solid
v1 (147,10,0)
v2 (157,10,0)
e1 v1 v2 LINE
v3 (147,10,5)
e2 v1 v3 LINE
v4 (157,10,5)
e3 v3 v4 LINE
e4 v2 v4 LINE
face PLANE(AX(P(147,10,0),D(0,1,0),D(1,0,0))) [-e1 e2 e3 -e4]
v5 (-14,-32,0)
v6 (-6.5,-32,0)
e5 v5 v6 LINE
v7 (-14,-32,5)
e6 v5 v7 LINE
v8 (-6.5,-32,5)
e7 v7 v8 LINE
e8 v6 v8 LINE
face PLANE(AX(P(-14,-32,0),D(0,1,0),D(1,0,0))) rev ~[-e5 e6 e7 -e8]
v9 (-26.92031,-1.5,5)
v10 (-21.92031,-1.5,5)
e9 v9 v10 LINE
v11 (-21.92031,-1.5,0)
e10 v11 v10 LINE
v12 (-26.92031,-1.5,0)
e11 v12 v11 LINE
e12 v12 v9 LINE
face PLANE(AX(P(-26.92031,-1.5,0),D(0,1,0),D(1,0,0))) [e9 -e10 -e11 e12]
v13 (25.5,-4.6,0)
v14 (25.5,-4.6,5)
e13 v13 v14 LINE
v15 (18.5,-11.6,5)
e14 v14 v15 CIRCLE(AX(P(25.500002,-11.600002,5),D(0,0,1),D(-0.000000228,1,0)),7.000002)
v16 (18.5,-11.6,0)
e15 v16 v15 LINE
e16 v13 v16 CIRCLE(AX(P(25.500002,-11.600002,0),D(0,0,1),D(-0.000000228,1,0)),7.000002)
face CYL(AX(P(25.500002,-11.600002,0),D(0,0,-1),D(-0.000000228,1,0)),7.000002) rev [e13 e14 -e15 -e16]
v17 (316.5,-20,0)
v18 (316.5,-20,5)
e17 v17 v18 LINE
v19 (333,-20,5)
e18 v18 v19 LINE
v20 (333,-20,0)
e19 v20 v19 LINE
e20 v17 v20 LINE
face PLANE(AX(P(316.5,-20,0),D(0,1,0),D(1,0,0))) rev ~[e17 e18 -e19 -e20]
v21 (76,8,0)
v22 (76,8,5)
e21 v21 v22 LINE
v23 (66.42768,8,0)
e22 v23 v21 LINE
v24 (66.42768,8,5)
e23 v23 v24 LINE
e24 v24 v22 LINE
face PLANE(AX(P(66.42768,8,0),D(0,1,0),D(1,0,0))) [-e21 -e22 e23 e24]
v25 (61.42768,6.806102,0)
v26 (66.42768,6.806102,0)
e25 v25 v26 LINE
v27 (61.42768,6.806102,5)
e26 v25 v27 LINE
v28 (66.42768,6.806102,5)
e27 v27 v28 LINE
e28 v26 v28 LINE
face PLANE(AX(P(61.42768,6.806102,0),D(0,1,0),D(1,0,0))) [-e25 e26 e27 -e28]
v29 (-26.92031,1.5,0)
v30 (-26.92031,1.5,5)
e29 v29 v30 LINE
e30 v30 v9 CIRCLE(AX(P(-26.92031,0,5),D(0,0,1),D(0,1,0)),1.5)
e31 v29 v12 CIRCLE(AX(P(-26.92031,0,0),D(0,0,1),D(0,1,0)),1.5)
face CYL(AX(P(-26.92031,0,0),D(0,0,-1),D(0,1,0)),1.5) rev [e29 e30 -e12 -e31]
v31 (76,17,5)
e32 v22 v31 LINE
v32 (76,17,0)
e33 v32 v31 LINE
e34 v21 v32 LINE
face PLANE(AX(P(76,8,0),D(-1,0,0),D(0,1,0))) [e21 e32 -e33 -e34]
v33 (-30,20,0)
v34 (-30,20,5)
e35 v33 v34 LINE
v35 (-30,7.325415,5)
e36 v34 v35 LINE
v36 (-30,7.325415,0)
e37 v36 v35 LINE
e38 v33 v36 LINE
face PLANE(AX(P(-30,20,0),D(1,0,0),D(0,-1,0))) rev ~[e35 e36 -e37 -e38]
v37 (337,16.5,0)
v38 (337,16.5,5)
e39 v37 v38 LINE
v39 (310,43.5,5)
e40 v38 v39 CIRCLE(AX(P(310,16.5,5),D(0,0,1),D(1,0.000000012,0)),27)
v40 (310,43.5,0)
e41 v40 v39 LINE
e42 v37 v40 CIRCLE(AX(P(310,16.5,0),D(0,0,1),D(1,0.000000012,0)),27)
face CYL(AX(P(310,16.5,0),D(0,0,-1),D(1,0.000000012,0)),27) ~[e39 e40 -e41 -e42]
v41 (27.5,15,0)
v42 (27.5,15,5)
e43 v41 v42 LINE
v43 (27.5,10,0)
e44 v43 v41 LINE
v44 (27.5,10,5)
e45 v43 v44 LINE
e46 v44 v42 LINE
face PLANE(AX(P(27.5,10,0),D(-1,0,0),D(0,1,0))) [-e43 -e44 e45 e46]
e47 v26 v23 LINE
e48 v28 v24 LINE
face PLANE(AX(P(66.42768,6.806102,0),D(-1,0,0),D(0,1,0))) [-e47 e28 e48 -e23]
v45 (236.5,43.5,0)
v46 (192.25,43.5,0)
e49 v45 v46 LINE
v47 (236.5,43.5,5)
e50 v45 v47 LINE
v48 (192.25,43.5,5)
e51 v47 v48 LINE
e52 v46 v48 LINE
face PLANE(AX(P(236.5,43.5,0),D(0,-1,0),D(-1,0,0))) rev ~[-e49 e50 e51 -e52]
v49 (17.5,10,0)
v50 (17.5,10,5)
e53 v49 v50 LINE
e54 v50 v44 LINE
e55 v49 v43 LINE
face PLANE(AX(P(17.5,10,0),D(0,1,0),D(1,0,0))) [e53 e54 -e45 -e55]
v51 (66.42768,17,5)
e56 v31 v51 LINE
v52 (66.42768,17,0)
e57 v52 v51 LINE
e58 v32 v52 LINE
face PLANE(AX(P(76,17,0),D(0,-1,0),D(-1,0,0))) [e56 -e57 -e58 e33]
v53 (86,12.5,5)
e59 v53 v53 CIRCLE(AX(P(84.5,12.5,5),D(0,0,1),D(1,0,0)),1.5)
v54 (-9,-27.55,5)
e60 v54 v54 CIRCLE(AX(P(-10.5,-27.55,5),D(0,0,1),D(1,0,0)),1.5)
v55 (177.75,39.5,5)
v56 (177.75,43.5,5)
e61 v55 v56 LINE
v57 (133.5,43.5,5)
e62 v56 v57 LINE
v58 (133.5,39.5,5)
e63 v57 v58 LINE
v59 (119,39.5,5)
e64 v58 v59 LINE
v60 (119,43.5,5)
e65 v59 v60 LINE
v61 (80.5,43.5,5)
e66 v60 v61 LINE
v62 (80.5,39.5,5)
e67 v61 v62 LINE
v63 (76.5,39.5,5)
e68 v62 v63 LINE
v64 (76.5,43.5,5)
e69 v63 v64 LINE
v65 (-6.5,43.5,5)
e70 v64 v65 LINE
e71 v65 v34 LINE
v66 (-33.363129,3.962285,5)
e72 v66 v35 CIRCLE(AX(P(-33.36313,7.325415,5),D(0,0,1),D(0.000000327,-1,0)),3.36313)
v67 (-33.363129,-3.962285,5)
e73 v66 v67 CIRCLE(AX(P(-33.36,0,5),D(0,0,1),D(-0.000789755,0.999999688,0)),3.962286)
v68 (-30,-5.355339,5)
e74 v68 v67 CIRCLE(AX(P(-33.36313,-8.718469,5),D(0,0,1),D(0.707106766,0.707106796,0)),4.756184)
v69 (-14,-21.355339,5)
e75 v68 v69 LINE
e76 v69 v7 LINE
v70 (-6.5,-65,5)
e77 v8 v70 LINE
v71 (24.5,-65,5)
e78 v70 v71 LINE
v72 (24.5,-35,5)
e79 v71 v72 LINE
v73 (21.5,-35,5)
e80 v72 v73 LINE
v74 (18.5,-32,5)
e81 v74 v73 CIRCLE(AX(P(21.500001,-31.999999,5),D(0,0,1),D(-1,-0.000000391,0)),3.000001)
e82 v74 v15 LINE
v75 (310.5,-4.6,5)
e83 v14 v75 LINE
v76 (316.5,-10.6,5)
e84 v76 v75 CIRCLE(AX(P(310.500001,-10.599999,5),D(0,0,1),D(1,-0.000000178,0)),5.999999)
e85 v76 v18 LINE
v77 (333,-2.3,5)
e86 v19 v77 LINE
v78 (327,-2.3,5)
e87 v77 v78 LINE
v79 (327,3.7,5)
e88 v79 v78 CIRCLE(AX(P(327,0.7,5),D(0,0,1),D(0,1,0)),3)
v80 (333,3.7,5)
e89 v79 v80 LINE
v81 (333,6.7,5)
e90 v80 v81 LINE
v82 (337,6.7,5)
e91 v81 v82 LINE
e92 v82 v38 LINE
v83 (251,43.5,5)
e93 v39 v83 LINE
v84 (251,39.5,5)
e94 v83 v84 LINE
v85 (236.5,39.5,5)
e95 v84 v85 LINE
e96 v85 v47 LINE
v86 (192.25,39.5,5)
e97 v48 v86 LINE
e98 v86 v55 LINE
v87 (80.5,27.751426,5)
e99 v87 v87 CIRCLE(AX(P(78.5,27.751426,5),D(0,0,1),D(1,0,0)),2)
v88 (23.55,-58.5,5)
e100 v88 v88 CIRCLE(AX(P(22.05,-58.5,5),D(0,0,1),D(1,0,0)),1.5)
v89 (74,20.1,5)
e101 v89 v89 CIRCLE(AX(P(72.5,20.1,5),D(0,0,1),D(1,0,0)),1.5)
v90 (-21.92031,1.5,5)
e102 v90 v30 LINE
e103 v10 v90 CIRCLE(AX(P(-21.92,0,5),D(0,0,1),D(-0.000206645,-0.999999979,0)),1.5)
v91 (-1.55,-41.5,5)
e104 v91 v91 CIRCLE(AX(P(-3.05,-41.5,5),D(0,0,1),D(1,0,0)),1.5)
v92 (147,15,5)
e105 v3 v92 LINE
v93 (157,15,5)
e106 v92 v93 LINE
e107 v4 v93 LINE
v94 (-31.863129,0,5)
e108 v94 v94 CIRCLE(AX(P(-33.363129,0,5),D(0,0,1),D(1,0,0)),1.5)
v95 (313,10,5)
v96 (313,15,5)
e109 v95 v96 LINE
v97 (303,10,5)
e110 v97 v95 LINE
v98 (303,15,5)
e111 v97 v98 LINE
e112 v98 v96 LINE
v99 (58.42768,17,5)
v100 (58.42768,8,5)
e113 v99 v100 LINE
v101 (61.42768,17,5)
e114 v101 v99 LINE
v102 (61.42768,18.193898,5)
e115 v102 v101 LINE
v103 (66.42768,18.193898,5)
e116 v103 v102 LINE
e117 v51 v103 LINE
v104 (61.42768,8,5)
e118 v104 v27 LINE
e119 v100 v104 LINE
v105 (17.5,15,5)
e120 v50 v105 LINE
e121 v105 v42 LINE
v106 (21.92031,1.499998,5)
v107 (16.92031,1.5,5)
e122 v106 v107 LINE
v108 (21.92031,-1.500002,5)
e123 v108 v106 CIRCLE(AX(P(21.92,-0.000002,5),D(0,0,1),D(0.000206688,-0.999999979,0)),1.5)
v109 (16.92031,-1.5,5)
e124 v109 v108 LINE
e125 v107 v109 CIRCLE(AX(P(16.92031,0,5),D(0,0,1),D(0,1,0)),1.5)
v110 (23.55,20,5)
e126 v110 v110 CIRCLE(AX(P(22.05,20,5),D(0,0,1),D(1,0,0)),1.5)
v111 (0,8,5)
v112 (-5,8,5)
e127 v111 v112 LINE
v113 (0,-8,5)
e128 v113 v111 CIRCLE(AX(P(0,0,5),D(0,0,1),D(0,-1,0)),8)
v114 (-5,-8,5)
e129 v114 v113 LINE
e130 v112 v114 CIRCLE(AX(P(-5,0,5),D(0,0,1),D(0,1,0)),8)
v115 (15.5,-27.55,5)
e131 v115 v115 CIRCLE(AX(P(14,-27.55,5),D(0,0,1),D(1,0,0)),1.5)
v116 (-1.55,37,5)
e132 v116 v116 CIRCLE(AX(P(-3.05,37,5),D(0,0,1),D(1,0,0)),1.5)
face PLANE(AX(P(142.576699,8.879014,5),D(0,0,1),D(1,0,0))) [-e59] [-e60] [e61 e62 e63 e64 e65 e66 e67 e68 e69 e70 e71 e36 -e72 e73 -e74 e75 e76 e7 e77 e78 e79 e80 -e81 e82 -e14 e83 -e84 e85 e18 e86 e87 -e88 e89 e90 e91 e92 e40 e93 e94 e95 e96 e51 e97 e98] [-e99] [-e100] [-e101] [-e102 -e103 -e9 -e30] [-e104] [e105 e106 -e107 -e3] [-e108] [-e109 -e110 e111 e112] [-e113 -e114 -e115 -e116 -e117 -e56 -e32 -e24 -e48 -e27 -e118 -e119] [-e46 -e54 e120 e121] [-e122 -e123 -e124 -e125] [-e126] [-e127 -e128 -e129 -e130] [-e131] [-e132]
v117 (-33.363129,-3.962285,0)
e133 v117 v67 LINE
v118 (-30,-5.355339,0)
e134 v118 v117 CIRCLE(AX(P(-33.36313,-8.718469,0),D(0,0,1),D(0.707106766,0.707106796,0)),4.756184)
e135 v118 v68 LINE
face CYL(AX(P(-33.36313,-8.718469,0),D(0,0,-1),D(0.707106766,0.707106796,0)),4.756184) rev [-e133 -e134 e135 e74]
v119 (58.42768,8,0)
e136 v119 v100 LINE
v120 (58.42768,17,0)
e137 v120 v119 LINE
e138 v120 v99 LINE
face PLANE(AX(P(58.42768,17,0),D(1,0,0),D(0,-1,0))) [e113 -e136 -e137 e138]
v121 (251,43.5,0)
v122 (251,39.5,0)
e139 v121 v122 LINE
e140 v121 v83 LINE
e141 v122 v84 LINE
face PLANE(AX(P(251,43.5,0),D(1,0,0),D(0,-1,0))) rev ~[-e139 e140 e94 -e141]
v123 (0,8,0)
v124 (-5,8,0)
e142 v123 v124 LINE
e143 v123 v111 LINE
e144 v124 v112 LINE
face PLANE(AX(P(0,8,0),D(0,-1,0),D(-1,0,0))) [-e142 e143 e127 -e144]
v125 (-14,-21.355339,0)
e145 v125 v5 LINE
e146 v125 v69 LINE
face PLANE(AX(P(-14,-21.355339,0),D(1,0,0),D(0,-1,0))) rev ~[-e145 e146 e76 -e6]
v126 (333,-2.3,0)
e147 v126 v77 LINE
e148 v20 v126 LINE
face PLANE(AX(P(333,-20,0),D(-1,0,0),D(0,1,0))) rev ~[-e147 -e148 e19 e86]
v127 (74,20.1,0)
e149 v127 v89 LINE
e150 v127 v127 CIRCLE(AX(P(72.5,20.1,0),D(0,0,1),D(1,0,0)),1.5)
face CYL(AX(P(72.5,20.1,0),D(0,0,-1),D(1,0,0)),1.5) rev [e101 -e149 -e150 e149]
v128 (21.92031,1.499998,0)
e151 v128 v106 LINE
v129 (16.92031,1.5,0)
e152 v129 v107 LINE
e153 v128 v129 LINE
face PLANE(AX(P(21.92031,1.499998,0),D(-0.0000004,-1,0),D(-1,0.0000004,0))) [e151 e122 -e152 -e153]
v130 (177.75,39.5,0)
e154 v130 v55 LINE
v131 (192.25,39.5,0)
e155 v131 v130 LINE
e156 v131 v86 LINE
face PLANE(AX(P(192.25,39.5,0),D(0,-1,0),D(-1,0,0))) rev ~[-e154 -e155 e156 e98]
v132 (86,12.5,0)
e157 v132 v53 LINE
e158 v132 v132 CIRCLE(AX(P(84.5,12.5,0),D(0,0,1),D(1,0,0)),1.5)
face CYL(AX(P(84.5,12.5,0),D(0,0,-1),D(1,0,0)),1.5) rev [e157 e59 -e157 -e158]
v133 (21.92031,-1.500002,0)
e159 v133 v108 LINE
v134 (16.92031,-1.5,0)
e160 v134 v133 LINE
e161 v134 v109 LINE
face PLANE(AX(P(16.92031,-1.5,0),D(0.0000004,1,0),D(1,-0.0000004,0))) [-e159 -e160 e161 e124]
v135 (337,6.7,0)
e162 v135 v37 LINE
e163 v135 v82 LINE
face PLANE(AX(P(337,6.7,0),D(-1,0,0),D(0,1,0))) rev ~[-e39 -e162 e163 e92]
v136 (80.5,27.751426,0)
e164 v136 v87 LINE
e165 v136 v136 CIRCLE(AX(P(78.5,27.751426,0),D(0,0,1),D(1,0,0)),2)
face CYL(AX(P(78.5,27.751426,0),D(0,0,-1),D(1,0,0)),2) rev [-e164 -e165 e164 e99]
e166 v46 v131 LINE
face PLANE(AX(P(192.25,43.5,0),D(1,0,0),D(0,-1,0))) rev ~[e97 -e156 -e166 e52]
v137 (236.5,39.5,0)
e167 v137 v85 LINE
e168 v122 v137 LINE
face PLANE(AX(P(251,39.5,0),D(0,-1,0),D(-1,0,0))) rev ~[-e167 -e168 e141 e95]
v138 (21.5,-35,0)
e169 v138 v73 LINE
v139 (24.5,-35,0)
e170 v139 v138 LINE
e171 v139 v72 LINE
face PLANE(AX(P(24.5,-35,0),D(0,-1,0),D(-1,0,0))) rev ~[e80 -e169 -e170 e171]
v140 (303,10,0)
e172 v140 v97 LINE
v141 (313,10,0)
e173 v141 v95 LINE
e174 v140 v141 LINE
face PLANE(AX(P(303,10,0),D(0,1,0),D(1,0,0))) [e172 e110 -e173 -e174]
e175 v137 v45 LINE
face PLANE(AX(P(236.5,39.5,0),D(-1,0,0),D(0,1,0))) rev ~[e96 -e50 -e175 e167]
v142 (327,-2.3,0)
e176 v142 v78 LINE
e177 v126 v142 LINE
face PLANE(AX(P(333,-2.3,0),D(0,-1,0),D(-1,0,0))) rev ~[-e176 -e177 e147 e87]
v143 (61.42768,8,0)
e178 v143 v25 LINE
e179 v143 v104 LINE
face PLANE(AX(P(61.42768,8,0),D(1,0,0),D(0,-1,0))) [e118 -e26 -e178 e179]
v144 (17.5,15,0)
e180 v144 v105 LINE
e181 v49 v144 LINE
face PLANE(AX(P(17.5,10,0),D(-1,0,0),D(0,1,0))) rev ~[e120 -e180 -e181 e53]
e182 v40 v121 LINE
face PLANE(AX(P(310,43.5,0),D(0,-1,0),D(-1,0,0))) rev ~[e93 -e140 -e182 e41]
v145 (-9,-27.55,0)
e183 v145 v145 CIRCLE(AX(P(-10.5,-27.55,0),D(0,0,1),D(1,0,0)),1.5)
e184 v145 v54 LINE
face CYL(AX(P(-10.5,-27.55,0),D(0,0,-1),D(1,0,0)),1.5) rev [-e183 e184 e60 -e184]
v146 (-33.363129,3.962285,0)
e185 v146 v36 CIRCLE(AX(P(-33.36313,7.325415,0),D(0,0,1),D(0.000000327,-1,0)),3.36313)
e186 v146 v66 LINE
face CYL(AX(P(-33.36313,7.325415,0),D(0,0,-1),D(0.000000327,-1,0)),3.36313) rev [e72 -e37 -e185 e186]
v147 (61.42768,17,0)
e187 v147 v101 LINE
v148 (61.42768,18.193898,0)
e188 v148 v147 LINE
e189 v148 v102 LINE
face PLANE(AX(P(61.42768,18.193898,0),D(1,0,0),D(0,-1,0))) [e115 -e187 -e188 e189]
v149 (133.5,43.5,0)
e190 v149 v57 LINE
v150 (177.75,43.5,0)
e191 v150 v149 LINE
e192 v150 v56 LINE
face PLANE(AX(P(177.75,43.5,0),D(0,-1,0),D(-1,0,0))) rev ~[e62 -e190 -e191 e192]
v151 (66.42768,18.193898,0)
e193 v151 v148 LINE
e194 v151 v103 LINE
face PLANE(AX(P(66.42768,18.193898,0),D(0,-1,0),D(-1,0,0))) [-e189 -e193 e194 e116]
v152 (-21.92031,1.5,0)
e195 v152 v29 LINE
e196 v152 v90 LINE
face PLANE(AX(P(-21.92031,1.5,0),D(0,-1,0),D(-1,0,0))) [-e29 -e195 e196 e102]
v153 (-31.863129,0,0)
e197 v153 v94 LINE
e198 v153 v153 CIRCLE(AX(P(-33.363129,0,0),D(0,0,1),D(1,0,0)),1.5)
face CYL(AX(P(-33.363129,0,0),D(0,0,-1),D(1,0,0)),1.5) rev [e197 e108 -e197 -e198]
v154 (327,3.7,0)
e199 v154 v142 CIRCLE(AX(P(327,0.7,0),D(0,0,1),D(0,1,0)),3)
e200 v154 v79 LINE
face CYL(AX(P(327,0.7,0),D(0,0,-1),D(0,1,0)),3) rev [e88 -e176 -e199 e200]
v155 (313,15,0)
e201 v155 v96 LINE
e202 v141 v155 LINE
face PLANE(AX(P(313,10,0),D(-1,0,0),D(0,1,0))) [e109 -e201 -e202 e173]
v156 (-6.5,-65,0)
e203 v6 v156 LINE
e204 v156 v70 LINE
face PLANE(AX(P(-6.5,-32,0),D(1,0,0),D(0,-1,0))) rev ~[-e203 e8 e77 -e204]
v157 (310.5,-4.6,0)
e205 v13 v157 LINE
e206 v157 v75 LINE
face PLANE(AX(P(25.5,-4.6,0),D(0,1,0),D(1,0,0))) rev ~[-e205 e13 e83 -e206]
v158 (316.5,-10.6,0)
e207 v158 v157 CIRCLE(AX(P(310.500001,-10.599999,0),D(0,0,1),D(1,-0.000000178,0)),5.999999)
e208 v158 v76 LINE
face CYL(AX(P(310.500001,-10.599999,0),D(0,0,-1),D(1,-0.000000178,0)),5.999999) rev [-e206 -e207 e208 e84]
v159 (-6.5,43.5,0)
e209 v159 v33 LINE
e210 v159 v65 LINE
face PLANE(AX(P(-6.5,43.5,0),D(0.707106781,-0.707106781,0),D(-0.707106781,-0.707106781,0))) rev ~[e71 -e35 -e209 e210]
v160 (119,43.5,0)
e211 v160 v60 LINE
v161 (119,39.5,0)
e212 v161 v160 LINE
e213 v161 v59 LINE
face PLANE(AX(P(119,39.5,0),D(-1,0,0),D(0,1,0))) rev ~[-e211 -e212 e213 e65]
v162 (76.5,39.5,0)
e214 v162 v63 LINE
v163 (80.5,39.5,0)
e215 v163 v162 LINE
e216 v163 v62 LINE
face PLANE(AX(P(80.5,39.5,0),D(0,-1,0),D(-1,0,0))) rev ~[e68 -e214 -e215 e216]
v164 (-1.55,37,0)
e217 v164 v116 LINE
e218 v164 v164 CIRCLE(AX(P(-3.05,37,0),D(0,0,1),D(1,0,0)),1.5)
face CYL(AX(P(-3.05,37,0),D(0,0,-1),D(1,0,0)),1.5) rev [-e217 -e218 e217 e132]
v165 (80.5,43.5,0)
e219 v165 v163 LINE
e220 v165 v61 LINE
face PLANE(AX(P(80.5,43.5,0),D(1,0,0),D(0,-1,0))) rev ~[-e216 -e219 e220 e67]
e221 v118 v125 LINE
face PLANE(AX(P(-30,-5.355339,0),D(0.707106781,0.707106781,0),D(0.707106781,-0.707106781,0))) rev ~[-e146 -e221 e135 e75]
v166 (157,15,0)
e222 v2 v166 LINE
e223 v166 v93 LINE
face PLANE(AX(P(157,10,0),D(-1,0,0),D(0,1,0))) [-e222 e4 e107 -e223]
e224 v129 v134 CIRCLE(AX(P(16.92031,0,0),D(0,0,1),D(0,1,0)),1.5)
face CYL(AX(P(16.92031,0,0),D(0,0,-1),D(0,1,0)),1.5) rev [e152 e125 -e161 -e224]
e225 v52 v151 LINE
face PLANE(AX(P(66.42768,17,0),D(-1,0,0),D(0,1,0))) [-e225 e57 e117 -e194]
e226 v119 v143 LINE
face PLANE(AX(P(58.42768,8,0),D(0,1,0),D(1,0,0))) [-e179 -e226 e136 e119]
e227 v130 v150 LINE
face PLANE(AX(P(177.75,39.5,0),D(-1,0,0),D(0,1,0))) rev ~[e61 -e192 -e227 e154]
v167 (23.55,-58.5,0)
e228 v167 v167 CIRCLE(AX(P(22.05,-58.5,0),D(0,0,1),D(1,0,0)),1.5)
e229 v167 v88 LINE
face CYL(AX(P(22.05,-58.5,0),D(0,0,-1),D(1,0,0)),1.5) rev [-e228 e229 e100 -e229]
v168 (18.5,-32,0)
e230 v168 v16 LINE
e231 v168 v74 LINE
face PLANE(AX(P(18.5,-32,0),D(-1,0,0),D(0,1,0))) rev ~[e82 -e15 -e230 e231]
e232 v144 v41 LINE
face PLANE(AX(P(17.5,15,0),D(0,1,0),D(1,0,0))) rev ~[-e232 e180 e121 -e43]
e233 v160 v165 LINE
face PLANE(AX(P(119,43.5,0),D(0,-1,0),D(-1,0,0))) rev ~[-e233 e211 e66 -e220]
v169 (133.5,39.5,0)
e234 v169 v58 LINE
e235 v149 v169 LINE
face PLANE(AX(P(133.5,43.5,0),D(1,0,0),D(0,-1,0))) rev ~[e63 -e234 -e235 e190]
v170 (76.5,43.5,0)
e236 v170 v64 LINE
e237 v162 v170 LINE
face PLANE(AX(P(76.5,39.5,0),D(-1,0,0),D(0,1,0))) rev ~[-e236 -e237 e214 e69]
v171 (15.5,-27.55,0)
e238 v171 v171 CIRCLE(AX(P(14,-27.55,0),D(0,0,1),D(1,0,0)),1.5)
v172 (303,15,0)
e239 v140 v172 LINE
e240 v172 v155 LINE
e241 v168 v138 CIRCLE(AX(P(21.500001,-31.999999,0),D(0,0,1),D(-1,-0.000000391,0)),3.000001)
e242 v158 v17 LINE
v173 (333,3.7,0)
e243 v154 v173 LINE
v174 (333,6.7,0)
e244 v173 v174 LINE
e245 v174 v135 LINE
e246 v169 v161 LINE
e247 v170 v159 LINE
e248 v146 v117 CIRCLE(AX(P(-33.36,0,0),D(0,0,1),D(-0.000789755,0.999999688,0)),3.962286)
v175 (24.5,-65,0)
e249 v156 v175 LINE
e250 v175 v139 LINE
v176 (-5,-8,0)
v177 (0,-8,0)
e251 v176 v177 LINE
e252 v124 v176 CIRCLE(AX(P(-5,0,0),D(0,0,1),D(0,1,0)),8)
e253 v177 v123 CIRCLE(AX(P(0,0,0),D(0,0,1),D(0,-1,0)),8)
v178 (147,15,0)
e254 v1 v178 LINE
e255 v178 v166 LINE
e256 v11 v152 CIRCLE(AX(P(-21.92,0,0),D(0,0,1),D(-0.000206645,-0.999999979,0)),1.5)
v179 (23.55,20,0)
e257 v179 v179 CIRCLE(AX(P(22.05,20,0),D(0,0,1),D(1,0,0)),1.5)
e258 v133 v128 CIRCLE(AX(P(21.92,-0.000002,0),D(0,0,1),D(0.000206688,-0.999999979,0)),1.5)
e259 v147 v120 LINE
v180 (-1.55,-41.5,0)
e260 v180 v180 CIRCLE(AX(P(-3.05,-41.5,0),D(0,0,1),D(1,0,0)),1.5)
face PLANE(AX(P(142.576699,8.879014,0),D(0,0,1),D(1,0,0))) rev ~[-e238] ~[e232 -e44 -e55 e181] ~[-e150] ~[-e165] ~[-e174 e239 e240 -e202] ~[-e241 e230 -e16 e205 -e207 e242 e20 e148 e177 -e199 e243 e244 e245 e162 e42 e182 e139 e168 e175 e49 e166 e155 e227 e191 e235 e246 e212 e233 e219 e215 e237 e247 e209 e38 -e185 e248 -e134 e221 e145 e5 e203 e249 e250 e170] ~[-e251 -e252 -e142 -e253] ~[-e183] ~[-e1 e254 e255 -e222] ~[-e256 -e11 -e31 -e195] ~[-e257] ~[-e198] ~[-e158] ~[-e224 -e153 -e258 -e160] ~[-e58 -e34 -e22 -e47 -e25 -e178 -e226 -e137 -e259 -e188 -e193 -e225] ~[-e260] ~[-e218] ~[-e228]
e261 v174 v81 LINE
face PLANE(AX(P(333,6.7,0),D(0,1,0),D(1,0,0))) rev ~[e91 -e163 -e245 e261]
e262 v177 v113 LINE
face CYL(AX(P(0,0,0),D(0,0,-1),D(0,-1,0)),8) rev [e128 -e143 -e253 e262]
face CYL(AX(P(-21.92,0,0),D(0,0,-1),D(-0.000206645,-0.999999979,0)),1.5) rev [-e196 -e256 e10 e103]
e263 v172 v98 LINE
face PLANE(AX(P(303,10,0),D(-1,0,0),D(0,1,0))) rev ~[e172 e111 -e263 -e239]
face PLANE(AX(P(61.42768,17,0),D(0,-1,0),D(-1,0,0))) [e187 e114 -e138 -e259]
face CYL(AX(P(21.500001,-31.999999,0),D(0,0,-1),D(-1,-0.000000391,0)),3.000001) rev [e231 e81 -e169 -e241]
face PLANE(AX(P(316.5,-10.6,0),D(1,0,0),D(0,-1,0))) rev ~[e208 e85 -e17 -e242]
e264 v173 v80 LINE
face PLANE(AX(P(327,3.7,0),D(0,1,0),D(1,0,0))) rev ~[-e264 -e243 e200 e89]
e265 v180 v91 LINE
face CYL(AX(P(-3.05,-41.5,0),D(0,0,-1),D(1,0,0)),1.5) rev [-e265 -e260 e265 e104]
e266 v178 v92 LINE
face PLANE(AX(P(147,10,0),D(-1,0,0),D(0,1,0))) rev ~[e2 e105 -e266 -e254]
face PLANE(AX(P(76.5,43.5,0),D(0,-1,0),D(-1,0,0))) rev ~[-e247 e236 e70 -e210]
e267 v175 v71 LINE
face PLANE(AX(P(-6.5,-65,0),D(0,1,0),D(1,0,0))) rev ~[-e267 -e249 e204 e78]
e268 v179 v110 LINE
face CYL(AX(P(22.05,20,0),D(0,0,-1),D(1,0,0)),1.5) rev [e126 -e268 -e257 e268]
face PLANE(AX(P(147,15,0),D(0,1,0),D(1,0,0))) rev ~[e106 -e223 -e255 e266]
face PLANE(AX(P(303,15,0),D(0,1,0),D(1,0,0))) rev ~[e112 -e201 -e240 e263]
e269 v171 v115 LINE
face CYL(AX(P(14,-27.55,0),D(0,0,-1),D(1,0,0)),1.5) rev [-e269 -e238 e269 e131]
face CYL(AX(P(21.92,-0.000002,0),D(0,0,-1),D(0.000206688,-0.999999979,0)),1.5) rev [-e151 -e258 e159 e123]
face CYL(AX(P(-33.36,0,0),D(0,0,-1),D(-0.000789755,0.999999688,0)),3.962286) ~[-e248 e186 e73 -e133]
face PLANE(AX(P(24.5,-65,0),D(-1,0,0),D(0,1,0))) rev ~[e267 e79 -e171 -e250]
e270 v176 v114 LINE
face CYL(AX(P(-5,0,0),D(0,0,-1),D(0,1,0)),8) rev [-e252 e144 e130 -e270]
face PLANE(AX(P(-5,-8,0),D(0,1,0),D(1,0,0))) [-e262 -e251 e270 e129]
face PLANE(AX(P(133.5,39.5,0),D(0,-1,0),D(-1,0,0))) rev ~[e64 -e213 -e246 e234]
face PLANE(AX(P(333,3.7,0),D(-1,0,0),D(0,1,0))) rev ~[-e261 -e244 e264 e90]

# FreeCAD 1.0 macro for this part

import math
import FreeCAD as App
import Part
import Sketcher
Q = App.Units.Quantity

doc = App.newDocument("Part")
params = doc.addObject("Spreadsheet::Sheet", "Params")
for row, (alias, value) in enumerate([
    ("sketch1_diameter", "3 mm"),
    ("sketch1_diameter2", "4 mm"),
    ("sketch1_radius", "3.000001 mm"),
    ("sketch1_radius2", "7.000002 mm"),
    ("sketch1_radius3", "5.999999 mm"),
    ("pad1_length", "5 mm"),
], start=1):
    params.set(f"A{row}", alias)
    params.set(f"B{row}", "=" + value)
    params.setAlias(f"B{row}", alias)

body = doc.addObject("PartDesign::Body", "Body")

sketch1 = body.newObject("Sketcher::SketchObject", "Sketch")
sketch1.AttachmentSupport = (doc.getObject("XY_Plane"), [""])
sketch1.MapMode = "FlatFace"
sketch1.addGeometry([
    Part.LineSegment(App.Vector(24.5, -35, 0), App.Vector(21.5, -35, 0)),
    Part.ArcOfCircle(Part.Circle(App.Vector(21.500001, -31.999999, 0), App.Vector(0, 0, 1), 3.000001), math.radians(-179.999978), math.radians(-90.000022)),
    Part.LineSegment(App.Vector(18.5, -32, 0), App.Vector(18.5, -11.6, 0)),
    Part.ArcOfCircle(Part.Circle(App.Vector(25.500002, -11.600002, 0), App.Vector(0, 0, 1), 7.000002), math.radians(90.000013), math.radians(179.999987)),
    Part.LineSegment(App.Vector(25.5, -4.6, 0), App.Vector(310.5, -4.6, 0)),
    Part.ArcOfCircle(Part.Circle(App.Vector(310.500001, -10.599999, 0), App.Vector(0, 0, 1), 5.999999), math.radians(-0.00001), math.radians(90.00001)),
    Part.LineSegment(App.Vector(316.5, -10.6, 0), App.Vector(316.5, -20, 0)),
    Part.LineSegment(App.Vector(316.5, -20, 0), App.Vector(333, -20, 0)),
    Part.LineSegment(App.Vector(333, -20, 0), App.Vector(333, -2.3, 0)),
    Part.LineSegment(App.Vector(333, -2.3, 0), App.Vector(327, -2.3, 0)),
    Part.ArcOfCircle(Part.Circle(App.Vector(327, 0.7, 0), App.Vector(0, 0, 1), 3), math.radians(90), math.radians(270)),
    Part.LineSegment(App.Vector(327, 3.7, 0), App.Vector(333, 3.7, 0)),
    Part.LineSegment(App.Vector(333, 3.7, 0), App.Vector(333, 6.7, 0)),
    Part.LineSegment(App.Vector(333, 6.7, 0), App.Vector(337, 6.7, 0)),
    Part.LineSegment(App.Vector(337, 6.7, 0), App.Vector(337, 16.5, 0)),
    Part.ArcOfCircle(Part.Circle(App.Vector(310, 16.5, 0), App.Vector(0, 0, 1), 27), math.radians(0.000001), math.radians(89.999999)),
    Part.LineSegment(App.Vector(310, 43.5, 0), App.Vector(251, 43.5, 0)),
    Part.LineSegment(App.Vector(251, 43.5, 0), App.Vector(251, 39.5, 0)),
    Part.LineSegment(App.Vector(251, 39.5, 0), App.Vector(236.5, 39.5, 0)),
    Part.LineSegment(App.Vector(236.5, 39.5, 0), App.Vector(236.5, 43.5, 0)),
    Part.LineSegment(App.Vector(236.5, 43.5, 0), App.Vector(192.25, 43.5, 0)),
    Part.LineSegment(App.Vector(192.25, 43.5, 0), App.Vector(192.25, 39.5, 0)),
    Part.LineSegment(App.Vector(192.25, 39.5, 0), App.Vector(177.75, 39.5, 0)),
    Part.LineSegment(App.Vector(177.75, 39.5, 0), App.Vector(177.75, 43.5, 0)),
    Part.LineSegment(App.Vector(177.75, 43.5, 0), App.Vector(133.5, 43.5, 0)),
    Part.LineSegment(App.Vector(133.5, 43.5, 0), App.Vector(133.5, 39.5, 0)),
    Part.LineSegment(App.Vector(133.5, 39.5, 0), App.Vector(119, 39.5, 0)),
    Part.LineSegment(App.Vector(119, 39.5, 0), App.Vector(119, 43.5, 0)),
    Part.LineSegment(App.Vector(119, 43.5, 0), App.Vector(80.5, 43.5, 0)),
    Part.LineSegment(App.Vector(80.5, 43.5, 0), App.Vector(80.5, 39.5, 0)),
    Part.LineSegment(App.Vector(80.5, 39.5, 0), App.Vector(76.5, 39.5, 0)),
    Part.LineSegment(App.Vector(76.5, 39.5, 0), App.Vector(76.5, 43.5, 0)),
    Part.LineSegment(App.Vector(76.5, 43.5, 0), App.Vector(-6.5, 43.5, 0)),
    Part.LineSegment(App.Vector(-6.5, 43.5, 0), App.Vector(-30, 20, 0)),
    Part.LineSegment(App.Vector(-30, 20, 0), App.Vector(-30, 7.325415, 0)),
    Part.ArcOfCircle(Part.Circle(App.Vector(-33.36313, 7.325415, 0), App.Vector(0, 0, 1), 3.36313), math.radians(-89.999981), math.radians(-0.000002)),
    Part.ArcOfCircle(Part.Circle(App.Vector(-33.36, 0, 0), App.Vector(0, 0, 1), 3.962286), math.radians(90.04525), math.radians(269.95475)),
    Part.ArcOfCircle(Part.Circle(App.Vector(-33.36313, -8.718469, 0), App.Vector(0, 0, 1), 4.756184), math.radians(45.000001), math.radians(89.999988)),
    Part.LineSegment(App.Vector(-30, -5.355339, 0), App.Vector(-14, -21.355339, 0)),
    Part.LineSegment(App.Vector(-14, -21.355339, 0), App.Vector(-14, -32, 0)),
    Part.LineSegment(App.Vector(-14, -32, 0), App.Vector(-6.5, -32, 0)),
    Part.LineSegment(App.Vector(-6.5, -32, 0), App.Vector(-6.5, -65, 0)),
    Part.LineSegment(App.Vector(-6.5, -65, 0), App.Vector(24.5, -65, 0)),
    Part.LineSegment(App.Vector(24.5, -65, 0), App.Vector(24.5, -35, 0)),
    Part.Circle(App.Vector(22.05, -58.5, 0), App.Vector(0, 0, 1), 1.5),
    Part.Circle(App.Vector(-3.05, -41.5, 0), App.Vector(0, 0, 1), 1.5),
    Part.Circle(App.Vector(-10.5, -27.55, 0), App.Vector(0, 0, 1), 1.5),
    Part.Circle(App.Vector(14, -27.55, 0), App.Vector(0, 0, 1), 1.5),
    Part.Circle(App.Vector(-33.363129, 0, 0), App.Vector(0, 0, 1), 1.5),
    Part.LineSegment(App.Vector(-26.92031, 1.5, 0), App.Vector(-21.92031, 1.5, 0)),
    Part.ArcOfCircle(Part.Circle(App.Vector(-21.92, 0, 0), App.Vector(0, 0, 1), 1.5), math.radians(-90.01184), math.radians(90.01184)),
    Part.LineSegment(App.Vector(-21.92031, -1.5, 0), App.Vector(-26.92031, -1.5, 0)),
    Part.ArcOfCircle(Part.Circle(App.Vector(-26.92031, 0, 0), App.Vector(0, 0, 1), 1.5), math.radians(90), math.radians(270)),
    Part.LineSegment(App.Vector(0, -8, 0), App.Vector(-5, -8, 0)),
    Part.ArcOfCircle(Part.Circle(App.Vector(-5, 0, 0), App.Vector(0, 0, 1), 8), math.radians(90), math.radians(270)),
    Part.LineSegment(App.Vector(-5, 8, 0), App.Vector(0, 8, 0)),
    Part.ArcOfCircle(Part.Circle(App.Vector(0, 0, 0), App.Vector(0, 0, 1), 8), math.radians(-90), math.radians(90)),
    Part.ArcOfCircle(Part.Circle(App.Vector(21.92, -0.000002, 0), App.Vector(0, 0, 1), 1.5), math.radians(-89.988158), math.radians(89.988158)),
    Part.LineSegment(App.Vector(21.92031, -1.500002, 0), App.Vector(16.92031, -1.5, 0)),
    Part.ArcOfCircle(Part.Circle(App.Vector(16.92031, 0, 0), App.Vector(0, 0, 1), 1.5), math.radians(90), math.radians(270)),
    Part.LineSegment(App.Vector(16.92031, 1.5, 0), App.Vector(21.92031, 1.499998, 0)),
    Part.LineSegment(App.Vector(27.5, 10, 0), App.Vector(17.5, 10, 0)),
    Part.LineSegment(App.Vector(17.5, 10, 0), App.Vector(17.5, 15, 0)),
    Part.LineSegment(App.Vector(17.5, 15, 0), App.Vector(27.5, 15, 0)),
    Part.LineSegment(App.Vector(27.5, 15, 0), App.Vector(27.5, 10, 0)),
    Part.LineSegment(App.Vector(66.42768, 18.193898, 0), App.Vector(66.42768, 17, 0)),
    Part.LineSegment(App.Vector(66.42768, 17, 0), App.Vector(76, 17, 0)),
    Part.LineSegment(App.Vector(76, 17, 0), App.Vector(76, 8, 0)),
    Part.LineSegment(App.Vector(76, 8, 0), App.Vector(66.42768, 8, 0)),
    Part.LineSegment(App.Vector(66.42768, 8, 0), App.Vector(66.42768, 6.806102, 0)),
    Part.LineSegment(App.Vector(66.42768, 6.806102, 0), App.Vector(61.42768, 6.806102, 0)),
    Part.LineSegment(App.Vector(61.42768, 6.806102, 0), App.Vector(61.42768, 8, 0)),
    Part.LineSegment(App.Vector(61.42768, 8, 0), App.Vector(58.42768, 8, 0)),
    Part.LineSegment(App.Vector(58.42768, 8, 0), App.Vector(58.42768, 17, 0)),
    Part.LineSegment(App.Vector(58.42768, 17, 0), App.Vector(61.42768, 17, 0)),
    Part.LineSegment(App.Vector(61.42768, 17, 0), App.Vector(61.42768, 18.193898, 0)),
    Part.LineSegment(App.Vector(61.42768, 18.193898, 0), App.Vector(66.42768, 18.193898, 0)),
    Part.Circle(App.Vector(84.5, 12.5, 0), App.Vector(0, 0, 1), 1.5),
    Part.Circle(App.Vector(22.05, 20, 0), App.Vector(0, 0, 1), 1.5),
    Part.Circle(App.Vector(-3.05, 37, 0), App.Vector(0, 0, 1), 1.5),
    Part.Circle(App.Vector(72.5, 20.1, 0), App.Vector(0, 0, 1), 1.5),
    Part.Circle(App.Vector(78.5, 27.751426, 0), App.Vector(0, 0, 1), 2),
    Part.LineSegment(App.Vector(157, 10, 0), App.Vector(147, 10, 0)),
    Part.LineSegment(App.Vector(147, 10, 0), App.Vector(147, 15, 0)),
    Part.LineSegment(App.Vector(147, 15, 0), App.Vector(157, 15, 0)),
    Part.LineSegment(App.Vector(157, 15, 0), App.Vector(157, 10, 0)),
    Part.LineSegment(App.Vector(313, 10, 0), App.Vector(303, 10, 0)),
    Part.LineSegment(App.Vector(303, 10, 0), App.Vector(303, 15, 0)),
    Part.LineSegment(App.Vector(303, 15, 0), App.Vector(313, 15, 0)),
    Part.LineSegment(App.Vector(313, 15, 0), App.Vector(313, 10, 0)),
], False)
sketch1.addConstraint([
    Sketcher.Constraint("Tangent", 0, 2, 1, 2),
    Sketcher.Constraint("Tangent", 1, 1, 2, 1),
    Sketcher.Constraint("Tangent", 2, 2, 3, 2),
    Sketcher.Constraint("Tangent", 3, 1, 4, 1),
    Sketcher.Constraint("Tangent", 4, 2, 5, 2),
    Sketcher.Constraint("Tangent", 5, 1, 6, 1),
    Sketcher.Constraint("Coincident", 6, 2, 7, 1),
    Sketcher.Constraint("Coincident", 7, 2, 8, 1),
    Sketcher.Constraint("Coincident", 8, 2, 9, 1),
    Sketcher.Constraint("Tangent", 9, 2, 10, 2),
    Sketcher.Constraint("Tangent", 10, 1, 11, 1),
    Sketcher.Constraint("Coincident", 11, 2, 12, 1),
    Sketcher.Constraint("Coincident", 12, 2, 13, 1),
    Sketcher.Constraint("Coincident", 13, 2, 14, 1),
    Sketcher.Constraint("Tangent", 14, 2, 15, 1),
    Sketcher.Constraint("Tangent", 15, 2, 16, 1),
    Sketcher.Constraint("Coincident", 16, 2, 17, 1),
    Sketcher.Constraint("Coincident", 17, 2, 18, 1),
    Sketcher.Constraint("Coincident", 18, 2, 19, 1),
    Sketcher.Constraint("Coincident", 19, 2, 20, 1),
    Sketcher.Constraint("Coincident", 20, 2, 21, 1),
    Sketcher.Constraint("Coincident", 21, 2, 22, 1),
    Sketcher.Constraint("Coincident", 22, 2, 23, 1),
    Sketcher.Constraint("Coincident", 23, 2, 24, 1),
    Sketcher.Constraint("Coincident", 24, 2, 25, 1),
    Sketcher.Constraint("Coincident", 25, 2, 26, 1),
    Sketcher.Constraint("Coincident", 26, 2, 27, 1),
    Sketcher.Constraint("Coincident", 27, 2, 28, 1),
    Sketcher.Constraint("Coincident", 28, 2, 29, 1),
    Sketcher.Constraint("Coincident", 29, 2, 30, 1),
    Sketcher.Constraint("Coincident", 30, 2, 31, 1),
    Sketcher.Constraint("Coincident", 31, 2, 32, 1),
    Sketcher.Constraint("Coincident", 32, 2, 33, 1),
    Sketcher.Constraint("Coincident", 33, 2, 34, 1),
    Sketcher.Constraint("Tangent", 34, 2, 35, 2),
    Sketcher.Constraint("Coincident", 35, 1, 36, 1),
    Sketcher.Constraint("Coincident", 36, 2, 37, 2),
    Sketcher.Constraint("Tangent", 37, 1, 38, 1),
    Sketcher.Constraint("Coincident", 38, 2, 39, 1),
    Sketcher.Constraint("Coincident", 39, 2, 40, 1),
    Sketcher.Constraint("Coincident", 40, 2, 41, 1),
    Sketcher.Constraint("Coincident", 41, 2, 42, 1),
    Sketcher.Constraint("Coincident", 42, 2, 43, 1),
    Sketcher.Constraint("Coincident", 43, 2, 0, 1),
    Sketcher.Constraint("Coincident", 49, 2, 50, 2),
    Sketcher.Constraint("Coincident", 50, 1, 51, 1),
    Sketcher.Constraint("Tangent", 51, 2, 52, 2),
    Sketcher.Constraint("Tangent", 52, 1, 49, 1),
    Sketcher.Constraint("Tangent", 53, 2, 54, 2),
    Sketcher.Constraint("Tangent", 54, 1, 55, 1),
    Sketcher.Constraint("Tangent", 55, 2, 56, 2),
    Sketcher.Constraint("Tangent", 56, 1, 53, 1),
    Sketcher.Constraint("Coincident", 57, 1, 58, 1),
    Sketcher.Constraint("Tangent", 58, 2, 59, 2),
    Sketcher.Constraint("Tangent", 59, 1, 60, 1),
    Sketcher.Constraint("Coincident", 60, 2, 57, 2),
    Sketcher.Constraint("Coincident", 61, 2, 62, 1),
    Sketcher.Constraint("Coincident", 62, 2, 63, 1),
    Sketcher.Constraint("Coincident", 63, 2, 64, 1),
    Sketcher.Constraint("Coincident", 64, 2, 61, 1),
    Sketcher.Constraint("Coincident", 65, 2, 66, 1),
    Sketcher.Constraint("Coincident", 66, 2, 67, 1),
    Sketcher.Constraint("Coincident", 67, 2, 68, 1),
    Sketcher.Constraint("Coincident", 68, 2, 69, 1),
    Sketcher.Constraint("Coincident", 69, 2, 70, 1),
    Sketcher.Constraint("Coincident", 70, 2, 71, 1),
    Sketcher.Constraint("Coincident", 71, 2, 72, 1),
    Sketcher.Constraint("Coincident", 72, 2, 73, 1),
    Sketcher.Constraint("Coincident", 73, 2, 74, 1),
    Sketcher.Constraint("Coincident", 74, 2, 75, 1),
    Sketcher.Constraint("Coincident", 75, 2, 76, 1),
    Sketcher.Constraint("Coincident", 76, 2, 65, 1),
    Sketcher.Constraint("Coincident", 82, 2, 83, 1),
    Sketcher.Constraint("Coincident", 83, 2, 84, 1),
    Sketcher.Constraint("Coincident", 84, 2, 85, 1),
    Sketcher.Constraint("Coincident", 85, 2, 82, 1),
    Sketcher.Constraint("Coincident", 86, 2, 87, 1),
    Sketcher.Constraint("Coincident", 87, 2, 88, 1),
    Sketcher.Constraint("Coincident", 88, 2, 89, 1),
    Sketcher.Constraint("Coincident", 89, 2, 86, 1),
    Sketcher.Constraint("Horizontal", 0),
    Sketcher.Constraint("Vertical", 2),
    Sketcher.Constraint("Horizontal", 4),
    Sketcher.Constraint("Vertical", 6),
    Sketcher.Constraint("Horizontal", 7),
    Sketcher.Constraint("Vertical", 8),
    Sketcher.Constraint("Horizontal", 9),
    Sketcher.Constraint("Horizontal", 11),
    Sketcher.Constraint("Vertical", 12),
    Sketcher.Constraint("Horizontal", 13),
    Sketcher.Constraint("Vertical", 14),
    Sketcher.Constraint("Horizontal", 16),
    Sketcher.Constraint("Vertical", 17),
    Sketcher.Constraint("Horizontal", 18),
    Sketcher.Constraint("Vertical", 19),
    Sketcher.Constraint("Horizontal", 20),
    Sketcher.Constraint("Vertical", 21),
    Sketcher.Constraint("Horizontal", 22),
    Sketcher.Constraint("Vertical", 23),
    Sketcher.Constraint("Horizontal", 24),
    Sketcher.Constraint("Vertical", 25),
    Sketcher.Constraint("Horizontal", 26),
    Sketcher.Constraint("Vertical", 27),
    Sketcher.Constraint("Horizontal", 28),
    Sketcher.Constraint("Vertical", 29),
    Sketcher.Constraint("Horizontal", 30),
    Sketcher.Constraint("Vertical", 31),
    Sketcher.Constraint("Horizontal", 32),
    Sketcher.Constraint("Vertical", 34),
    Sketcher.Constraint("Vertical", 39),
    Sketcher.Constraint("Horizontal", 40),
    Sketcher.Constraint("Vertical", 41),
    Sketcher.Constraint("Horizontal", 42),
    Sketcher.Constraint("Vertical", 43),
    Sketcher.Constraint("Horizontal", 49),
    Sketcher.Constraint("Horizontal", 51),
    Sketcher.Constraint("Horizontal", 53),
    Sketcher.Constraint("Horizontal", 55),
    Sketcher.Constraint("Horizontal", 61),
    Sketcher.Constraint("Vertical", 62),
    Sketcher.Constraint("Horizontal", 63),
    Sketcher.Constraint("Vertical", 64),
    Sketcher.Constraint("Vertical", 65),
    Sketcher.Constraint("Horizontal", 66),
    Sketcher.Constraint("Vertical", 67),
    Sketcher.Constraint("Horizontal", 68),
    Sketcher.Constraint("Vertical", 69),
    Sketcher.Constraint("Horizontal", 70),
    Sketcher.Constraint("Vertical", 71),
    Sketcher.Constraint("Horizontal", 72),
    Sketcher.Constraint("Vertical", 73),
    Sketcher.Constraint("Horizontal", 74),
    Sketcher.Constraint("Vertical", 75),
    Sketcher.Constraint("Horizontal", 76),
    Sketcher.Constraint("Horizontal", 82),
    Sketcher.Constraint("Vertical", 83),
    Sketcher.Constraint("Horizontal", 84),
    Sketcher.Constraint("Vertical", 85),
    Sketcher.Constraint("Horizontal", 86),
    Sketcher.Constraint("Vertical", 87),
    Sketcher.Constraint("Horizontal", 88),
    Sketcher.Constraint("Vertical", 89),
    Sketcher.Constraint("Coincident", 56, 3, -1, 1),
    Sketcher.Constraint("Equal", 1, 10),
    Sketcher.Constraint("Equal", 44, 45),
    Sketcher.Constraint("Equal", 45, 46),
    Sketcher.Constraint("Equal", 46, 47),
    Sketcher.Constraint("Equal", 47, 48),
    Sketcher.Constraint("Equal", 48, 50),
    Sketcher.Constraint("Equal", 52, 57),
    Sketcher.Constraint("Equal", 57, 59),
    Sketcher.Constraint("Equal", 59, 77),
    Sketcher.Constraint("Equal", 77, 78),
    Sketcher.Constraint("Equal", 78, 79),
    Sketcher.Constraint("Equal", 79, 80),
    Sketcher.Constraint("Symmetric", 50, 3, 57, 3, -1, 1),
    Sketcher.Constraint("Symmetric", 50, 1, 57, 1, -2),
    Sketcher.Constraint("Symmetric", 35, 1, 36, 2, -1),
    Sketcher.Constraint("PointOnObject", 48, 3, -1),
    Sketcher.Constraint("PointOnObject", 59, 3, -1),
    Sketcher.Constraint("Perpendicular", 33, 38),
    Sketcher.Constraint("Horizontal", 46, 3, 47, 3),
    Sketcher.Constraint("Horizontal", 16, 2, 19, 2),
    Sketcher.Constraint("Horizontal", 18, 2, 21, 2),
    Sketcher.Constraint("Horizontal", 20, 2, 23, 2),
    Sketcher.Constraint("Horizontal", 22, 2, 25, 2),
    Sketcher.Constraint("Horizontal", 24, 2, 27, 2),
    Sketcher.Constraint("Horizontal", 26, 2, 29, 2),
    Sketcher.Constraint("Horizontal", 28, 2, 31, 2),
    Sketcher.Constraint("Horizontal", 78, 3, 33, 2),
    Sketcher.Constraint("Horizontal", 1, 1, 39, 2),
    Sketcher.Constraint("Horizontal", 55, 2, 67, 2),
    Sketcher.Constraint("Horizontal", 68, 2, 71, 2),
    Sketcher.Constraint("Horizontal", 66, 2, 73, 2),
    Sketcher.Constraint("Horizontal", 64, 2, 82, 2),
    Sketcher.Constraint("Horizontal", 63, 2, 83, 2),
    Sketcher.Constraint("Horizontal", 85, 2, 86, 2),
    Sketcher.Constraint("Horizontal", 84, 2, 87, 2),
    Sketcher.Constraint("Vertical", 35, 3, 37, 3),
    Sketcher.Constraint("Vertical", 37, 3, 48, 3),
    Sketcher.Constraint("Vertical", 44, 3, 78, 3),
    Sketcher.Constraint("Vertical", 45, 3, 79, 3),
    Sketcher.Constraint("Vertical", 8, 2, 11, 2),
    Sketcher.Constraint("Vertical", 48, 3, 35, 1),
    Sketcher.Constraint("Vertical", 34, 2, 37, 1),
    Sketcher.Constraint("Vertical", 32, 2, 40, 2),
    Sketcher.Constraint("Vertical", 49, 2, 50, 1),
    Sketcher.Constraint("Vertical", 57, 1, 60, 2),
    Sketcher.Constraint("Vertical", 65, 2, 68, 2),
    Sketcher.Constraint("Vertical", 71, 2, 74, 2),
    Sketcher.Constraint("Equal", 18, 22),
    Sketcher.Constraint("Equal", 20, 24),
    Sketcher.Constraint("Equal", 22, 26),
    Sketcher.Constraint("Equal", 13, 30),
    Sketcher.Constraint("Equal", 51, 53),
    Sketcher.Constraint("Equal", 55, 70),
    Sketcher.Constraint("Equal", 0, 72),
    Sketcher.Constraint("Equal", 63, 82),
    Sketcher.Constraint("Equal", 84, 86),
    Sketcher.Constraint("Equal", 74, 12),
    Sketcher.Constraint("Equal", 30, 17),
    Sketcher.Constraint("Equal", 76, 62),
    Sketcher.Constraint("Equal", 65, 69),
    Sketcher.Constraint("Diameter", 44, Q("3 mm")),
    Sketcher.Constraint("Diameter", 81, Q("4 mm")),
    Sketcher.Constraint("Radius", 1, Q("3.000001 mm")),
    Sketcher.Constraint("Radius", 3, Q("7.000002 mm")),
    Sketcher.Constraint("Radius", 5, Q("5.999999 mm")),
    Sketcher.Constraint("Radius", 15, Q("27 mm")),
    Sketcher.Constraint("Radius", 54, Q("8 mm")),
    Sketcher.Constraint("DistanceX", 0, 2, 0, 1, Q("3 mm")),
    Sketcher.Constraint("DistanceX", 4, 1, 4, 2, Q("285 mm")),
    Sketcher.Constraint("DistanceX", 9, 2, 9, 1, Q("6 mm")),
    Sketcher.Constraint("DistanceX", 13, 1, 13, 2, Q("4 mm")),
    Sketcher.Constraint("DistanceX", 16, 2, 16, 1, Q("59 mm")),
    Sketcher.Constraint("DistanceX", 32, 2, 32, 1, Q("83 mm")),
    Sketcher.Constraint("DistanceX", 42, 1, 42, 2, Q("31 mm")),
    Sketcher.Constraint("DistanceX", 49, 1, 49, 2, Q("5 mm")),
    Sketcher.Constraint("DistanceX", 61, 2, 61, 1, Q("10 mm")),
    Sketcher.Constraint("DistanceY", 41, 2, 41, 1, Q("33 mm")),
    Sketcher.Constraint("DistanceY", 67, 2, 67, 1, Q("9 mm")),
    Sketcher.Constraint("Angle", 33, Q("-135 deg")),
    Sketcher.Constraint("Distance", 58, Q("5 mm")),
    Sketcher.Constraint("DistanceX", 7, 1, 7, 2, Q("16.5 mm")),
    Sketcher.Constraint("DistanceX", 18, 2, 18, 1, Q("14.5 mm")),
    Sketcher.Constraint("DistanceX", 28, 2, 28, 1, Q("38.5 mm")),
    Sketcher.Constraint("DistanceX", 40, 1, 40, 2, Q("7.5 mm")),
    Sketcher.Constraint("DistanceY", 2, 1, 2, 2, Q("20.4 mm")),
    Sketcher.Constraint("DistanceY", 6, 2, 6, 1, Q("9.4 mm")),
    Sketcher.Constraint("DistanceY", 8, 1, 8, 2, Q("17.7 mm")),
    Sketcher.Constraint("DistanceY", 14, 1, 14, 2, Q("9.8 mm")),
    Sketcher.Constraint("DistanceY", 1, 3, -1, 1, Q("31.999999 mm")),
    Sketcher.Constraint("DistanceX", -1, 1, 10, 3, Q("327 mm")),
    Sketcher.Constraint("DistanceX", -1, 1, 47, 3, Q("14 mm")),
    Sketcher.Constraint("DistanceY", -1, 1, 78, 3, Q("20 mm")),
    Sketcher.Constraint("DistanceY", -1, 1, 79, 3, Q("37 mm")),
    Sketcher.Constraint("DistanceY", -1, 1, 61, 2, Q("10 mm")),
    Sketcher.Constraint("DistanceX", -1, 1, 66, 2, Q("76 mm")),
    Sketcher.Constraint("DistanceX", -1, 1, 82, 2, Q("147 mm")),
    Sketcher.Constraint("DistanceX", -1, 1, 86, 2, Q("303 mm")),
    Sketcher.Constraint("DistanceY", 44, 3, -1, 1, Q("58.5 mm")),
    Sketcher.Constraint("DistanceY", 45, 3, -1, 1, Q("41.5 mm")),
    Sketcher.Constraint("DistanceX", 46, 3, -1, 1, Q("10.5 mm")),
    Sketcher.Constraint("DistanceX", -1, 1, 77, 3, Q("84.5 mm")),
    Sketcher.Constraint("DistanceY", -1, 1, 77, 3, Q("12.5 mm")),
    Sketcher.Constraint("DistanceX", -1, 1, 80, 3, Q("72.5 mm")),
    Sketcher.Constraint("DistanceY", -1, 1, 80, 3, Q("20.1 mm")),
    Sketcher.Constraint("DistanceX", -1, 1, 81, 3, Q("78.5 mm")),
    Sketcher.Constraint("DistanceX", -1, 1, 61, 2, Q("17.5 mm")),
    Sketcher.Constraint("DistanceX", 36, 3, -1, 1, Q("33.36 mm")),
    Sketcher.Constraint("DistanceX", -1, 1, 44, 3, Q("22.05 mm")),
    Sketcher.Constraint("DistanceX", 45, 3, -1, 1, Q("3.05 mm")),
    Sketcher.Constraint("DistanceY", 46, 3, -1, 1, Q("27.55 mm")),
    Sketcher.Constraint("DistanceX", 50, 3, -1, 1, Q("21.92 mm")),
    Sketcher.Constraint("Radius", 35, Q("3.36313 mm")),
    Sketcher.Constraint("DistanceY", 65, 2, 65, 1, Q("1.193898 mm")),
    Sketcher.Constraint("Radius", 36, Q("3.962286 mm")),
    Sketcher.Constraint("DistanceX", 66, 1, 66, 2, Q("9.57232 mm")),
    Sketcher.Constraint("DistanceX", 52, 3, -1, 1, Q("26.92031 mm")),
    Sketcher.Constraint("DistanceY", -1, 1, 81, 3, Q("27.751426 mm")),
])
sketch1.setExpression("Constraints[203]", "Params.sketch1_diameter")
sketch1.setExpression("Constraints[204]", "Params.sketch1_diameter2")
sketch1.setExpression("Constraints[205]", "Params.sketch1_radius")
sketch1.setExpression("Constraints[206]", "Params.sketch1_radius2")
sketch1.setExpression("Constraints[207]", "Params.sketch1_radius3")
pad1 = body.newObject("PartDesign::Pad", "Pad")
pad1.Profile = sketch1
pad1.setExpression("Length", "Params.pad1_length")

doc.recompute()
